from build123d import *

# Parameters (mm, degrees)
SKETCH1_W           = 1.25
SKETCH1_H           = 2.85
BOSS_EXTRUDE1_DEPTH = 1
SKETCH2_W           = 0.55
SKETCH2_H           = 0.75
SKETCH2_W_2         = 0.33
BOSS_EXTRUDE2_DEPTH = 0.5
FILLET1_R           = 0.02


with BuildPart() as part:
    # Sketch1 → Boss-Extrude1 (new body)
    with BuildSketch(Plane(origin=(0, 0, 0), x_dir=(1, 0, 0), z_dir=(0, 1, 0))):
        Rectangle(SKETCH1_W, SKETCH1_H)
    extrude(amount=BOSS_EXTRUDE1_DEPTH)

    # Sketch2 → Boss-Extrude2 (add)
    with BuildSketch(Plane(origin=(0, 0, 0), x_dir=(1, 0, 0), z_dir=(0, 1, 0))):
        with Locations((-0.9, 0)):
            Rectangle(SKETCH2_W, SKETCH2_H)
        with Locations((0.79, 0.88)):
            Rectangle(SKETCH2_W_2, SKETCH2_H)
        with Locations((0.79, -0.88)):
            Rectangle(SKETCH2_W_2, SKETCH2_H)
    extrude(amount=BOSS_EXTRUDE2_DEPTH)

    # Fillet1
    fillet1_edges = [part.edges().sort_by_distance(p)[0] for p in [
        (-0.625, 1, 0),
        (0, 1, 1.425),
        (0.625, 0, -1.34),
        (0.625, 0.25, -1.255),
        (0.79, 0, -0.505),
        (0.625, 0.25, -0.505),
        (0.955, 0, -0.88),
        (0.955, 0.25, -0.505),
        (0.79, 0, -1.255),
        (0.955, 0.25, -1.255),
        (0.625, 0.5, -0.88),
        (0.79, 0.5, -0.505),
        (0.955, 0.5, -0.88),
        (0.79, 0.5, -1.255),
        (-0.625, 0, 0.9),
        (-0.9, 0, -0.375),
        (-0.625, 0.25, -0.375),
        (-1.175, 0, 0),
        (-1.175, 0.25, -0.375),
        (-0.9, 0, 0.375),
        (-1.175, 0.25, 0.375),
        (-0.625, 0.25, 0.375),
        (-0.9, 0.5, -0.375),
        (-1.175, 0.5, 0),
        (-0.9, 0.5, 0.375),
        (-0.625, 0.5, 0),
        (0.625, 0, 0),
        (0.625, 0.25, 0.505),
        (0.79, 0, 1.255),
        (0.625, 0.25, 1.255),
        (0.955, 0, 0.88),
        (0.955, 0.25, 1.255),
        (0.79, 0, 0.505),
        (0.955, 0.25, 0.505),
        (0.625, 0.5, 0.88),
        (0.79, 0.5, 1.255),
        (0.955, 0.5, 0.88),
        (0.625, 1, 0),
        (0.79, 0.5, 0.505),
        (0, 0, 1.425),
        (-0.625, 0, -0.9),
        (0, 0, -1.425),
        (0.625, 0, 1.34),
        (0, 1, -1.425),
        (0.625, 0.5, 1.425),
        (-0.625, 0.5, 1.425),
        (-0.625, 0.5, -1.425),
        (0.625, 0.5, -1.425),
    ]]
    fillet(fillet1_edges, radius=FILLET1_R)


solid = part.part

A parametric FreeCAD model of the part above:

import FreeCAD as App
import Part
import Sketcher
Q = App.Units.Quantity


def add_polygon(sketch, points):
    """Adds a closed chain of lines whose ends are joined by coincident constraints."""
    first, n = sketch.GeometryCount, len(points)
    for a, b in zip(points, points[1:] + points[:1]):
        sketch.addGeometry(Part.LineSegment(App.Vector(*a, 0), App.Vector(*b, 0)), False)
    for i in range(n):
        sketch.addConstraint(Sketcher.Constraint("Coincident", first + i, 2, first + (i + 1) % n, 1))

doc = App.newDocument("Part")
body = doc.addObject("PartDesign::Body", "Body")

sketch1 = body.newObject("Sketcher::SketchObject", "Sketch")
sketch1.AttachmentSupport = (doc.getObject("XZ_Plane"), [""])
sketch1.MapMode = "FlatFace"
add_polygon(sketch1, [(-0.6, -1.4), (-0.6, 1.4), (0.6, 1.4), (0.6, -1.4)])
sketch1.addConstraint([
    Sketcher.Constraint("Vertical", 0),
    Sketcher.Constraint("Horizontal", 1),
    Sketcher.Constraint("Vertical", 2),
    Sketcher.Constraint("Horizontal", 3),
    Sketcher.Constraint("Symmetric", 0, 2, 2, 2, -1, 1),
    Sketcher.Constraint("DistanceX", 1, 1, 1, 2, Q("1.25 mm")),
    Sketcher.Constraint("DistanceY", 0, 1, 0, 2, Q("2.85 mm")),
])
pad1 = body.newObject("PartDesign::Pad", "Pad")
pad1.Profile = sketch1
pad1.Length = 1
pad1.Reversed = True

sketch2 = body.newObject("Sketcher::SketchObject", "Sketch001")
sketch2.AttachmentSupport = (doc.getObject("XZ_Plane"), [""])
sketch2.MapMode = "FlatFace"
add_polygon(sketch2, [(-1.18, -0.38), (-1.18, 0.38), (-0.62, 0.38), (-0.62, -0.38)])
add_polygon(sketch2, [(0.62, -1.25), (0.62, -0.51), (0.95, -0.51), (0.95, -1.25)])
add_polygon(sketch2, [(0.62, 0.51), (0.62, 1.25), (0.95, 1.25), (0.95, 0.51)])
sketch2.addConstraint([
    Sketcher.Constraint("Vertical", 0),
    Sketcher.Constraint("Horizontal", 1),
    Sketcher.Constraint("Vertical", 2),
    Sketcher.Constraint("Horizontal", 3),
    Sketcher.Constraint("Vertical", 4),
    Sketcher.Constraint("Horizontal", 5),
    Sketcher.Constraint("Vertical", 6),
    Sketcher.Constraint("Horizontal", 7),
    Sketcher.Constraint("Vertical", 8),
    Sketcher.Constraint("Horizontal", 9),
    Sketcher.Constraint("Vertical", 10),
    Sketcher.Constraint("Horizontal", 11),
    Sketcher.Constraint("Symmetric", 7, 2, 8, 2, -1),
    Sketcher.Constraint("Symmetric", 5, 2, 10, 2, -1),
    Sketcher.Constraint("Equal", 2, 4),
    Sketcher.Constraint("DistanceX", 1, 1, 1, 2, Q("0.55 mm")),
    Sketcher.Constraint("DistanceX", 5, 1, 5, 2, Q("0.33 mm")),
    Sketcher.Constraint("DistanceY", 0, 1, 0, 2, Q("0.75 mm")),
    Sketcher.Constraint("DistanceX", 3, 2, 4, 2, Q("1.8 mm")),
    Sketcher.Constraint("DistanceY", 4, 2, 2, 2, Q("0.13 mm")),
    Sketcher.Constraint("DistanceY", 1, 2, 8, 2, Q("0.88 mm")),
    Sketcher.Constraint("DistanceX", 0, 2, -1, 1, Q("1.175 mm")),
])
pad2 = body.newObject("PartDesign::Pad", "Pad001")
pad2.Profile = sketch2
pad2.Length = 0.5
pad2.Reversed = True
doc.recompute()

fillet = body.newObject("PartDesign::Fillet", "Fillet")
fillet.Base = (pad2, ["Edge1"])
fillet.UseAllEdges = True
fillet.Radius = 0.02

doc.recompute()
